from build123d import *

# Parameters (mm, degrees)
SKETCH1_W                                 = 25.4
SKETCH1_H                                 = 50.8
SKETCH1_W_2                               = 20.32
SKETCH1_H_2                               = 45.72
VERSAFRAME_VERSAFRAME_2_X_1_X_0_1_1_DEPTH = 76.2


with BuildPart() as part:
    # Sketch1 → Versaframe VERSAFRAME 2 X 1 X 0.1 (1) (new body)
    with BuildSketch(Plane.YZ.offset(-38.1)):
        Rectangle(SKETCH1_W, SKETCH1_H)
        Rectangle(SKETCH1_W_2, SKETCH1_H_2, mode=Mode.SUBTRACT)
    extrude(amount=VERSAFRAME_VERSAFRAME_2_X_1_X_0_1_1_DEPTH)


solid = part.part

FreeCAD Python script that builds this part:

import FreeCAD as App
import Part
import Sketcher
Q = App.Units.Quantity

doc = App.newDocument("Part")
body = doc.addObject("PartDesign::Body", "Body")

sketch1 = body.newObject("Sketcher::SketchObject", "Sketch")
sketch1.AttachmentSupport = (doc.getObject("YZ_Plane"), [""])
sketch1.MapMode = "FlatFace"
sketch1.AttachmentOffset = App.Placement(App.Vector(0, 0, -1.5 * 25.4), App.Rotation())
sketch1.addGeometry([
    Part.LineSegment(App.Vector(-13, 25, 0), App.Vector(-13, -25, 0)),
    Part.LineSegment(App.Vector(-13, -25, 0), App.Vector(13, -25, 0)),
    Part.LineSegment(App.Vector(13, -25, 0), App.Vector(13, 25, 0)),
    Part.LineSegment(App.Vector(13, 25, 0), App.Vector(-13, 25, 0)),
    Part.LineSegment(App.Vector(10, -23, 0), App.Vector(-10, -23, 0)),
    Part.LineSegment(App.Vector(-10, -23, 0), App.Vector(-10, 23, 0)),
    Part.LineSegment(App.Vector(-10, 23, 0), App.Vector(10, 23, 0)),
    Part.LineSegment(App.Vector(10, 23, 0), App.Vector(10, -23, 0)),
], False)
sketch1.addConstraint([
    Sketcher.Constraint("Coincident", 0, 2, 1, 1),
    Sketcher.Constraint("Coincident", 1, 2, 2, 1),
    Sketcher.Constraint("Coincident", 2, 2, 3, 1),
    Sketcher.Constraint("Coincident", 3, 2, 0, 1),
    Sketcher.Constraint("Coincident", 4, 2, 5, 1),
    Sketcher.Constraint("Coincident", 5, 2, 6, 1),
    Sketcher.Constraint("Coincident", 6, 2, 7, 1),
    Sketcher.Constraint("Coincident", 7, 2, 4, 1),
    Sketcher.Constraint("Vertical", 0),
    Sketcher.Constraint("Horizontal", 1),
    Sketcher.Constraint("Vertical", 2),
    Sketcher.Constraint("Horizontal", 3),
    Sketcher.Constraint("Horizontal", 4),
    Sketcher.Constraint("Vertical", 5),
    Sketcher.Constraint("Horizontal", 6),
    Sketcher.Constraint("Vertical", 7),
    Sketcher.Constraint("Symmetric", 0, 2, 2, 2, -1, 1),
    Sketcher.Constraint("Symmetric", 4, 2, 6, 2, -1, 1),
    Sketcher.Constraint("DistanceX", 1, 1, 1, 2, Q("1 in")),
    Sketcher.Constraint("DistanceY", 0, 2, 0, 1, Q("2 in")),
    Sketcher.Constraint("DistanceX", 4, 2, 4, 1, Q("0.8 in")),
    Sketcher.Constraint("DistanceY", 5, 1, 5, 2, Q("1.8 in")),
])
pad1 = body.newObject("PartDesign::Pad", "Pad")
pad1.Profile = sketch1
pad1.Length = Q("3 in")

doc.recompute()
